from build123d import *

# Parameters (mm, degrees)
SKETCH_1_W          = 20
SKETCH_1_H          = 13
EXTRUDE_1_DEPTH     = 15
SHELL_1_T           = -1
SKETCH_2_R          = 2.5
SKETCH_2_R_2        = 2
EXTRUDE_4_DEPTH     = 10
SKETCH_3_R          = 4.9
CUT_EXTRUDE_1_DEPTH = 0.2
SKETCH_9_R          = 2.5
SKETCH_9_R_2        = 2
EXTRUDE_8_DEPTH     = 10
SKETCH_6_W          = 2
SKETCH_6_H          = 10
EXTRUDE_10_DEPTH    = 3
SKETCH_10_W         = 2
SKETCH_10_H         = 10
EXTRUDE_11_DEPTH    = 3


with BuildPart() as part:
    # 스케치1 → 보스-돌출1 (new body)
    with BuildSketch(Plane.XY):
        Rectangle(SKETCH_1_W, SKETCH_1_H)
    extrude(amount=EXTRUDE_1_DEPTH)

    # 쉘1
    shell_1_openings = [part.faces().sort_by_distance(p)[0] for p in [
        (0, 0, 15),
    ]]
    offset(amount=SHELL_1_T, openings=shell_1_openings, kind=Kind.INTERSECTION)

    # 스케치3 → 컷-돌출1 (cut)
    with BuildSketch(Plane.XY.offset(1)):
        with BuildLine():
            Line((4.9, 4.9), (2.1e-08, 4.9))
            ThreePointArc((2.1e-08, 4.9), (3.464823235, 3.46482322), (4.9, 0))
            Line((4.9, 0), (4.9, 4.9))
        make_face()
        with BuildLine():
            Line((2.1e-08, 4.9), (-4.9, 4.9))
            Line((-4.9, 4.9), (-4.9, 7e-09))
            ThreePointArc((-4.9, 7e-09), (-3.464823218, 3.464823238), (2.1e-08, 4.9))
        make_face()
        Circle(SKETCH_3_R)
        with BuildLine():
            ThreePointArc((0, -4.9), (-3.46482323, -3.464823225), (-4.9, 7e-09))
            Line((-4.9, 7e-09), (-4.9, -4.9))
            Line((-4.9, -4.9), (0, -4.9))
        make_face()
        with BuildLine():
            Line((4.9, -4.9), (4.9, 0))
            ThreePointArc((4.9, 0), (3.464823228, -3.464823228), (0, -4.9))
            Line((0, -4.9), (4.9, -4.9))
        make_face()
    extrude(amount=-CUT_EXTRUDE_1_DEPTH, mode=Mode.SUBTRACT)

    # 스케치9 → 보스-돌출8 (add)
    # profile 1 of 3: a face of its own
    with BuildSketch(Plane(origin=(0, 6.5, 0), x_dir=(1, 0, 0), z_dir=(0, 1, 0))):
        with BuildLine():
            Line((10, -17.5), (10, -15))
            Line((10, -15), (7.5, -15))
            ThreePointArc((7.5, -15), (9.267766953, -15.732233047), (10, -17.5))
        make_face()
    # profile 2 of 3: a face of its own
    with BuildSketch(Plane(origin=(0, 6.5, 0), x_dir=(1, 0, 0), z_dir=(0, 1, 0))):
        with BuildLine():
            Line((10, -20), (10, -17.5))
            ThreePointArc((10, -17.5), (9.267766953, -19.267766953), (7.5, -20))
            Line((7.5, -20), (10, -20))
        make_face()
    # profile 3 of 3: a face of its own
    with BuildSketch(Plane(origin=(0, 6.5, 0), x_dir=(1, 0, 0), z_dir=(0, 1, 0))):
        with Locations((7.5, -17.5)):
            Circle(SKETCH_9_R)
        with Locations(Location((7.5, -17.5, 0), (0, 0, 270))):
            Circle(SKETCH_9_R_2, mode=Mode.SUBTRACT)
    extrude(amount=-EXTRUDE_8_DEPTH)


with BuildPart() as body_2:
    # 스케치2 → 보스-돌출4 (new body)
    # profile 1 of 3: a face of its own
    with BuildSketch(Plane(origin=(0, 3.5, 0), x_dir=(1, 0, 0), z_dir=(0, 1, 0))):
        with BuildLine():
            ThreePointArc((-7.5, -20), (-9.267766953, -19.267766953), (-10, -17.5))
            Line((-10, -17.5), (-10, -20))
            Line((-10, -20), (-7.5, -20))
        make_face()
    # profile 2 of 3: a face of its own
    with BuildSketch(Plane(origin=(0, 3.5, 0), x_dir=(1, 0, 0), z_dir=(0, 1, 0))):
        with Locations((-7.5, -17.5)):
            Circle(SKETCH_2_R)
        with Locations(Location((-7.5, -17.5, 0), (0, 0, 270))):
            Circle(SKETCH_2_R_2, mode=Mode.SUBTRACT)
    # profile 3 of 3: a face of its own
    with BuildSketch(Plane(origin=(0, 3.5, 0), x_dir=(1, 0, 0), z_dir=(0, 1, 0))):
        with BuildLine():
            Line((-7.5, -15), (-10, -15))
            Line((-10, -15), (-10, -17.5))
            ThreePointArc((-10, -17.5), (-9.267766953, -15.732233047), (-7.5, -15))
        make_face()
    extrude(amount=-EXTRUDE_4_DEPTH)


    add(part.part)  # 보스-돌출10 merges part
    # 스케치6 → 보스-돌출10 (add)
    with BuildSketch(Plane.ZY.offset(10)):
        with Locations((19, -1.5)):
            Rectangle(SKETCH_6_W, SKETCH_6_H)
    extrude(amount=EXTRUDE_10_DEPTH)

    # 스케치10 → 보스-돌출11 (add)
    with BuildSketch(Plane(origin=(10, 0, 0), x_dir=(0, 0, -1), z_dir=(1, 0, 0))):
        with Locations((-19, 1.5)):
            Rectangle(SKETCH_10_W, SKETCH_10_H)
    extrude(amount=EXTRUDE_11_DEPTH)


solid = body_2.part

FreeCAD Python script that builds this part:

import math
import FreeCAD as App
import Part
import Sketcher
from FreeCAD import Vector
Q = App.Units.Quantity


def faces_at(feature, points):
    """Names of the faces that lie closest to the given points."""
    faces = feature.Shape.Faces
    near = lambda p: min(range(len(faces)), key=lambda i: faces[i].distToShape(Part.Vertex(*p))[0])
    return sorted({f"Face{near(p) + 1}" for p in points})


def add_polygon(sketch, points):
    """Adds a closed chain of lines whose ends are joined by coincident constraints."""
    first, n = sketch.GeometryCount, len(points)
    for a, b in zip(points, points[1:] + points[:1]):
        sketch.addGeometry(Part.LineSegment(App.Vector(*a, 0), App.Vector(*b, 0)), False)
    for i in range(n):
        sketch.addConstraint(Sketcher.Constraint("Coincident", first + i, 2, first + (i + 1) % n, 1))

doc = App.newDocument("Part")
body = doc.addObject("PartDesign::Body", "Body")

sketch1 = body.newObject("Sketcher::SketchObject", "Sketch")
sketch1.AttachmentSupport = (doc.getObject("XY_Plane"), [""])
sketch1.MapMode = "FlatFace"
add_polygon(sketch1, [(-10, 6.5), (-10, -6.5), (10, -6.5), (10, 6.5)])
sketch1.addConstraint([
    Sketcher.Constraint("Vertical", 0),
    Sketcher.Constraint("Horizontal", 1),
    Sketcher.Constraint("Vertical", 2),
    Sketcher.Constraint("Horizontal", 3),
    Sketcher.Constraint("Symmetric", 0, 2, 2, 2, -1, 1),
    Sketcher.Constraint("DistanceX", 1, 1, 1, 2, Q("20 mm")),
    Sketcher.Constraint("DistanceY", 0, 2, 0, 1, Q("13 mm")),
])
pad1 = body.newObject("PartDesign::Pad", "Pad")
pad1.Profile = sketch1
pad1.Length = 15
doc.recompute()

thickness = body.newObject("PartDesign::Thickness", "Thickness")
thickness.Base = (pad1, faces_at(pad1, [(0, 0, 15)]))
thickness.Value = 1
thickness.Reversed = True
thickness.Join = "Intersection"

sketch2 = body.newObject("Sketcher::SketchObject", "Sketch001")
sketch2.AttachmentSupport = (doc.getObject("XY_Plane"), [""])
sketch2.MapMode = "FlatFace"
sketch2.AttachmentOffset = App.Placement(Vector(0, 0, 1), App.Rotation())
add_polygon(sketch2, [(4.9, 4.9), (-4.9, 4.9), (-4.9, -4.9), (4.9, -4.9)])
sketch2.addConstraint([
    Sketcher.Constraint("Horizontal", 0),
    Sketcher.Constraint("Vertical", 1),
    Sketcher.Constraint("Horizontal", 2),
    Sketcher.Constraint("Vertical", 3),
    Sketcher.Constraint("Symmetric", 0, 2, 2, 2, -1, 1),
    Sketcher.Constraint("Equal", 2, 1),
    Sketcher.Constraint("DistanceX", 0, 2, 0, 1, Q("9.8 mm")),
])
pocket1 = body.newObject("PartDesign::Pocket", "Pocket")
pocket1.Profile = sketch2
pocket1.Length = 0.2

sketch3 = body.newObject("Sketcher::SketchObject", "Sketch002")
sketch3.AttachmentSupport = (doc.getObject("XZ_Plane"), [""])
sketch3.MapMode = "FlatFace"
sketch3.AttachmentOffset = App.Placement(Vector(0, 0, -6.5), App.Rotation())
sketch3.addGeometry([
    Part.LineSegment(Vector(10, 15, 0), Vector(7.5, 15, 0)),
    Part.ArcOfCircle(Part.Circle(Vector(7.5, 17.5, 0), Vector(0, 0, 1), 2.5), math.radians(90), math.radians(270)),
    Part.LineSegment(Vector(7.5, 20, 0), Vector(10, 20, 0)),
    Part.LineSegment(Vector(10, 20, 0), Vector(10, 15, 0)),
    Part.Circle(Vector(7.5, 17.5, 0), Vector(0, 0, 1), 2),
], False)
sketch3.addConstraint([
    Sketcher.Constraint("Tangent", 0, 2, 1, 2),
    Sketcher.Constraint("Tangent", 1, 1, 2, 1),
    Sketcher.Constraint("Coincident", 2, 2, 3, 1),
    Sketcher.Constraint("Coincident", 3, 2, 0, 1),
    Sketcher.Constraint("Horizontal", 0),
    Sketcher.Constraint("Horizontal", 2),
    Sketcher.Constraint("Vertical", 3),
    Sketcher.Constraint("Coincident", 4, 3, 1, 3),
    Sketcher.Constraint("Diameter", 4, Q("4 mm")),
    Sketcher.Constraint("Radius", 1, Q("2.5 mm")),
    Sketcher.Constraint("DistanceX", 0, 2, 0, 1, Q("2.5 mm")),
    Sketcher.Constraint("DistanceY", -1, 1, 0, 2, Q("15 mm")),
    Sketcher.Constraint("DistanceX", -1, 1, 2, 2, Q("10 mm")),
])
pad2 = body.newObject("PartDesign::Pad", "Pad001")
pad2.Profile = sketch3
pad2.Length = 10
body2 = doc.addObject("PartDesign::Body", "Body001")

sketch4 = body2.newObject("Sketcher::SketchObject", "Sketch003")
sketch4.AttachmentSupport = (doc.getObject("XZ_Plane001"), [""])
sketch4.MapMode = "FlatFace"
sketch4.AttachmentOffset = App.Placement(Vector(0, 0, -3.5), App.Rotation())
sketch4.addGeometry([
    Part.LineSegment(Vector(-10, 20, 0), Vector(-7.5, 20, 0)),
    Part.ArcOfCircle(Part.Circle(Vector(-7.5, 17.5, 0), Vector(0, 0, 1), 2.5), math.radians(-90), math.radians(90)),
    Part.LineSegment(Vector(-7.5, 15, 0), Vector(-10, 15, 0)),
    Part.LineSegment(Vector(-10, 15, 0), Vector(-10, 20, 0)),
    Part.Circle(Vector(-7.5, 17.5, 0), Vector(0, 0, 1), 2),
], False)
sketch4.addConstraint([
    Sketcher.Constraint("Tangent", 0, 2, 1, 2),
    Sketcher.Constraint("Tangent", 1, 1, 2, 1),
    Sketcher.Constraint("Coincident", 2, 2, 3, 1),
    Sketcher.Constraint("Coincident", 3, 2, 0, 1),
    Sketcher.Constraint("Horizontal", 0),
    Sketcher.Constraint("Horizontal", 2),
    Sketcher.Constraint("Vertical", 3),
    Sketcher.Constraint("Coincident", 4, 3, 1, 3),
    Sketcher.Constraint("Diameter", 4, Q("4 mm")),
    Sketcher.Constraint("Radius", 1, Q("2.5 mm")),
    Sketcher.Constraint("DistanceX", 0, 1, 0, 2, Q("2.5 mm")),
    Sketcher.Constraint("DistanceY", -1, 1, 0, 2, Q("20 mm")),
    Sketcher.Constraint("DistanceX", 2, 2, -1, 1, Q("10 mm")),
])
pad3 = body2.newObject("PartDesign::Pad", "Pad002")
pad3.Profile = sketch4
pad3.Length = 10
doc.recompute()

boolean = body2.newObject("PartDesign::Boolean", "Boolean")
boolean.Type = "Fuse"
boolean.addObjects([body])

sketch5 = body2.newObject("Sketcher::SketchObject", "Sketch004")
sketch5.AttachmentSupport = (doc.getObject("YZ_Plane001"), [""])
sketch5.MapMode = "FlatFace"
sketch5.AttachmentOffset = App.Placement(Vector(0, 0, -10), App.Rotation())
add_polygon(sketch5, [(3.5, 18), (-6.5, 18), (-6.5, 20), (3.5, 20)])
sketch5.addConstraint([
    Sketcher.Constraint("Horizontal", 0),
    Sketcher.Constraint("Vertical", 1),
    Sketcher.Constraint("Horizontal", 2),
    Sketcher.Constraint("Vertical", 3),
    Sketcher.Constraint("DistanceX", 0, 2, 0, 1, Q("10 mm")),
    Sketcher.Constraint("DistanceY", 1, 1, 1, 2, Q("2 mm")),
    Sketcher.Constraint("DistanceY", -1, 1, 0, 2, Q("18 mm")),
    Sketcher.Constraint("DistanceX", 0, 2, -1, 1, Q("6.5 mm")),
])
pad4 = body2.newObject("PartDesign::Pad", "Pad003")
pad4.Profile = sketch5
pad4.Length = 3
pad4.Reversed = True

sketch6 = body2.newObject("Sketcher::SketchObject", "Sketch005")
sketch6.AttachmentSupport = (doc.getObject("YZ_Plane001"), [""])
sketch6.MapMode = "FlatFace"
sketch6.AttachmentOffset = App.Placement(Vector(0, 0, 10), App.Rotation())
add_polygon(sketch6, [(6.5, 20), (-3.5, 20), (-3.5, 18), (6.5, 18)])
sketch6.addConstraint([
    Sketcher.Constraint("Horizontal", 0),
    Sketcher.Constraint("Vertical", 1),
    Sketcher.Constraint("Horizontal", 2),
    Sketcher.Constraint("Vertical", 3),
    Sketcher.Constraint("DistanceX", 0, 2, 0, 1, Q("10 mm")),
    Sketcher.Constraint("DistanceY", 1, 2, 1, 1, Q("2 mm")),
    Sketcher.Constraint("DistanceY", -1, 1, 0, 2, Q("20 mm")),
    Sketcher.Constraint("DistanceX", 0, 2, -1, 1, Q("3.5 mm")),
])
pad5 = body2.newObject("PartDesign::Pad", "Pad004")
pad5.Profile = sketch6
pad5.Length = 3

doc.recompute()
